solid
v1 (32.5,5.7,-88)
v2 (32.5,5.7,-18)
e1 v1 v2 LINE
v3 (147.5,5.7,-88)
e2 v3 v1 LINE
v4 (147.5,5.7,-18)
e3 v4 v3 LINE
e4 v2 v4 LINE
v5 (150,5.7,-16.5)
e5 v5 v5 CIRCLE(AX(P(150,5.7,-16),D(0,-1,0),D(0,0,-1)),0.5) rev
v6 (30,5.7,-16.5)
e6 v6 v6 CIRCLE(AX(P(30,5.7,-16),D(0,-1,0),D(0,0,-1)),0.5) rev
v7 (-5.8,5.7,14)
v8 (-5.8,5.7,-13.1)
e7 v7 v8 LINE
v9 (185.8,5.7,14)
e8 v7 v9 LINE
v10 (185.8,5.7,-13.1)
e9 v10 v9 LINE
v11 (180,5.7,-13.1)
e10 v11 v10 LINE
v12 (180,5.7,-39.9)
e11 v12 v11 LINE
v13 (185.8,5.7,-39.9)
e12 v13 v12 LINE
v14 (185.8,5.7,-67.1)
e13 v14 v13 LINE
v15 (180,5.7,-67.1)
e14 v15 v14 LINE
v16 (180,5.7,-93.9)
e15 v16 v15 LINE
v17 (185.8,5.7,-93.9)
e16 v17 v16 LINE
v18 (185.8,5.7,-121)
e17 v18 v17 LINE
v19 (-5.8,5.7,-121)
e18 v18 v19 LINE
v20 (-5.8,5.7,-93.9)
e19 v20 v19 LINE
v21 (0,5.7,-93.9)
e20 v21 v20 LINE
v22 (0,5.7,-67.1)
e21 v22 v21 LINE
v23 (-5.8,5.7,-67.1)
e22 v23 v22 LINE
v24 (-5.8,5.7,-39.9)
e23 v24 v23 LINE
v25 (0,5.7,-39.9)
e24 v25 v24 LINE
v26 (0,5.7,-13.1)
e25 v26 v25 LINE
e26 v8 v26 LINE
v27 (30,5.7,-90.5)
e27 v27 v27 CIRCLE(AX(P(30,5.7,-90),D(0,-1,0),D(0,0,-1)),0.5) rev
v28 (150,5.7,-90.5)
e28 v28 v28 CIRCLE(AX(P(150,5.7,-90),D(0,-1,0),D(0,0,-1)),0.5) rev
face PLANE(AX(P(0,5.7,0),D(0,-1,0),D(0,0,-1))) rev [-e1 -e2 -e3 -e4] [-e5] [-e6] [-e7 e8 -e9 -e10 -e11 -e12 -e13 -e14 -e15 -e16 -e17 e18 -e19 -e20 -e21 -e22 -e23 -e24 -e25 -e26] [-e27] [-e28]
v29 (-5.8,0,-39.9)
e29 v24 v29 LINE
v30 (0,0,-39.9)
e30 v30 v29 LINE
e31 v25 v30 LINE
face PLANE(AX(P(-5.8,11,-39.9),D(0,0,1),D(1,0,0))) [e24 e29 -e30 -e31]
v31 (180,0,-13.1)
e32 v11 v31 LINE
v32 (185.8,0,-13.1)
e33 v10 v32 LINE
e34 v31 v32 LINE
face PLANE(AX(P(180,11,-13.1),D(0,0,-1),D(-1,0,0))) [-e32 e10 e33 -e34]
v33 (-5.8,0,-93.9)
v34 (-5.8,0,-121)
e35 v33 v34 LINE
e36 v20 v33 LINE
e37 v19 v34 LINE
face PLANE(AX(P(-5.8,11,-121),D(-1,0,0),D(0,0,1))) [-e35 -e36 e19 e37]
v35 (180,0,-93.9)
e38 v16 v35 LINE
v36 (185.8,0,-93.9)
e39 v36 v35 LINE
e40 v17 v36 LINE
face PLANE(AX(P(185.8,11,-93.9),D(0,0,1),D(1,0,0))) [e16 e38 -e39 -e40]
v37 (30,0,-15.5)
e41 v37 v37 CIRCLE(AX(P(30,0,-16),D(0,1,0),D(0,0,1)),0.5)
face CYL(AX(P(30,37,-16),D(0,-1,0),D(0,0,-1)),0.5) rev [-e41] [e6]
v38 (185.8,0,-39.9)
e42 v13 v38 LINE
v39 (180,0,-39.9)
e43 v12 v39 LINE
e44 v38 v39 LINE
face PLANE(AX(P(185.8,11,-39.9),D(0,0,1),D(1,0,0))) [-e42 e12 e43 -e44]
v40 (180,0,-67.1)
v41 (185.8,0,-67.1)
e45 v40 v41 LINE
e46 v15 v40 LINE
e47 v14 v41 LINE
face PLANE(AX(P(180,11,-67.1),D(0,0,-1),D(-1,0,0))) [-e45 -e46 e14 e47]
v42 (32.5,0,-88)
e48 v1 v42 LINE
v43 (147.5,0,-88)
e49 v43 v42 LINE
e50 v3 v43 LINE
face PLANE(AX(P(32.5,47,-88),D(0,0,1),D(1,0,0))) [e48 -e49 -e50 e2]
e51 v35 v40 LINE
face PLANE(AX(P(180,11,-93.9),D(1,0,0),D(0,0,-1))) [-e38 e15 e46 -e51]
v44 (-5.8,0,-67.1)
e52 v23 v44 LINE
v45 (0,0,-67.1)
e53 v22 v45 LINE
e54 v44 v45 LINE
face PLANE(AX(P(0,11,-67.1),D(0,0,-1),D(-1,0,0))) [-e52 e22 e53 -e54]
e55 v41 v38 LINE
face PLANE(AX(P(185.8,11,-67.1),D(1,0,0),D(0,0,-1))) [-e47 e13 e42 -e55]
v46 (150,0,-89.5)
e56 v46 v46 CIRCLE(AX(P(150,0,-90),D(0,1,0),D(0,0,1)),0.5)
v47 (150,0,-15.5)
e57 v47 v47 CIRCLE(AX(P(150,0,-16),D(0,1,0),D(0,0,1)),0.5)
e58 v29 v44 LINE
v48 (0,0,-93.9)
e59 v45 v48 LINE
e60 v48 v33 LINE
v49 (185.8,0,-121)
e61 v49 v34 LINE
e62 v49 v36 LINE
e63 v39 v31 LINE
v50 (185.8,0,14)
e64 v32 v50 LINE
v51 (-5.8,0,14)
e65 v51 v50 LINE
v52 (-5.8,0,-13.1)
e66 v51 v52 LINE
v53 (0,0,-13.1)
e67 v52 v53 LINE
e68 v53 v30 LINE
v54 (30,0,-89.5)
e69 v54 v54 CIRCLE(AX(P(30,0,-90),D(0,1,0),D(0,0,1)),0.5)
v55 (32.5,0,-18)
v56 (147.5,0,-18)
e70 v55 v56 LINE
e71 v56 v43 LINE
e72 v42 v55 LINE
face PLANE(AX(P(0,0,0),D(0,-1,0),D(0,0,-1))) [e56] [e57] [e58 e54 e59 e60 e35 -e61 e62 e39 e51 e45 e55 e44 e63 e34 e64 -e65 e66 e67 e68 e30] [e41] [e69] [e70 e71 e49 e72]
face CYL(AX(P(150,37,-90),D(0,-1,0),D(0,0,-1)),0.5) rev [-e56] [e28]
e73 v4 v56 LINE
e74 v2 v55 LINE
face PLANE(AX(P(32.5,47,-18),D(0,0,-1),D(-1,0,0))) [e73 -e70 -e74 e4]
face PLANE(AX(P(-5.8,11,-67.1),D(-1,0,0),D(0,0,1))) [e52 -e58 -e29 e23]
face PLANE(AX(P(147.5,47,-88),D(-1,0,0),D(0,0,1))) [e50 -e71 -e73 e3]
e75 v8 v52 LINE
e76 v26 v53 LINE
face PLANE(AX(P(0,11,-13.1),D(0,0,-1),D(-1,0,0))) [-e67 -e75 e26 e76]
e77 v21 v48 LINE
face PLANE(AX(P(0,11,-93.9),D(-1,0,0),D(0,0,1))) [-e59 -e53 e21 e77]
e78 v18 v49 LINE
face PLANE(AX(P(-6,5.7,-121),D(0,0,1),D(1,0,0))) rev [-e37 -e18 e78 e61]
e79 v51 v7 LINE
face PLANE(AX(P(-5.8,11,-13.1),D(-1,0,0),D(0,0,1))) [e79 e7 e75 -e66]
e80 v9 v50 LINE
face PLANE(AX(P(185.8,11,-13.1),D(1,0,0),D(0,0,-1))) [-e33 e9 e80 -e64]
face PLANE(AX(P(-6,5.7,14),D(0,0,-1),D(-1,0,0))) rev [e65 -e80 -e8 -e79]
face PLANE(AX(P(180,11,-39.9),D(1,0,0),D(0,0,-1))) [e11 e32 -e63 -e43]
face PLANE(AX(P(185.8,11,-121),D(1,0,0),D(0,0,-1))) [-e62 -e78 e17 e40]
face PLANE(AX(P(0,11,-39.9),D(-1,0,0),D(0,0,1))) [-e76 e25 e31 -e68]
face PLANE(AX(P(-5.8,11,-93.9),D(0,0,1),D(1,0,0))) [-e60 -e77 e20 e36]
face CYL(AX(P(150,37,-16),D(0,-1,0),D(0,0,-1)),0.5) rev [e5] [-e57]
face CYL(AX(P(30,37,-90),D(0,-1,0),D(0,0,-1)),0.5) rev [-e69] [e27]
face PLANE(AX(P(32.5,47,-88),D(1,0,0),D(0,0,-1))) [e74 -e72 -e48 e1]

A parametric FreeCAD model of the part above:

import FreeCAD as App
import Part
import Sketcher
Q = App.Units.Quantity


def add_polygon(sketch, points):
    """Adds a closed chain of lines whose ends are joined by coincident constraints."""
    first, n = sketch.GeometryCount, len(points)
    for a, b in zip(points, points[1:] + points[:1]):
        sketch.addGeometry(Part.LineSegment(App.Vector(*a, 0), App.Vector(*b, 0)), False)
    for i in range(n):
        sketch.addConstraint(Sketcher.Constraint("Coincident", first + i, 2, first + (i + 1) % n, 1))

doc = App.newDocument("Part")
params = doc.addObject("Spreadsheet::Sheet", "Params")
for row, (alias, value) in enumerate([
    ("sketch1_width", "192 mm"),
    ("sketch1_height", "135 mm"),
    ("pad1_length", "5.7 mm"),
    ("sketch2_width", "115 mm"),
    ("sketch2_height", "70 mm"),
    ("pocket1_length", "47 mm"),
    ("sketch3_diameter", "1 mm"),
    ("pocket2_length", "37 mm"),
    ("sketch4_width", "4 mm"),
    ("sketch4_height", "135 mm"),
    ("sketch4_width2", "5.8 mm"),
    ("sketch4_height2", "27.1 mm"),
    ("sketch4_height3", "26.8 mm"),
    ("pocket3_length", "11 mm"),
], start=1):
    params.set(f"A{row}", alias)
    params.set(f"B{row}", "=" + value)
    params.setAlias(f"B{row}", alias)

body = doc.addObject("PartDesign::Body", "Body")

sketch1 = body.newObject("Sketcher::SketchObject", "Sketch")
sketch1.AttachmentSupport = (doc.getObject("XZ_Plane"), [""])
sketch1.MapMode = "FlatFace"
add_polygon(sketch1, [(-6, -121), (-6, 14), (186, 14), (186, -121)])
sketch1.addConstraint([
    Sketcher.Constraint("Vertical", 0),
    Sketcher.Constraint("Horizontal", 1),
    Sketcher.Constraint("Vertical", 2),
    Sketcher.Constraint("Horizontal", 3),
    Sketcher.Constraint("DistanceX", 1, 1, 1, 2, Q("192 mm")),
    Sketcher.Constraint("DistanceY", 0, 1, 0, 2, Q("135 mm")),
    Sketcher.Constraint("DistanceX", 0, 2, -1, 1, Q("6 mm")),
    Sketcher.Constraint("DistanceY", -1, 1, 0, 2, Q("14 mm")),
])
sketch1.setExpression("Constraints[8]", "Params.sketch1_width")
sketch1.setExpression("Constraints[9]", "Params.sketch1_height")
pad1 = body.newObject("PartDesign::Pad", "Pad")
pad1.Profile = sketch1
pad1.setExpression("Length", "Params.pad1_length")
pad1.Reversed = True

sketch2 = body.newObject("Sketcher::SketchObject", "Sketch001")
sketch2.AttachmentSupport = (doc.getObject("XZ_Plane"), [""])
sketch2.MapMode = "FlatFace"
add_polygon(sketch2, [(32.5, -88), (32.5, -18), (147.5, -18), (147.5, -88)])
sketch2.addConstraint([
    Sketcher.Constraint("Vertical", 0),
    Sketcher.Constraint("Horizontal", 1),
    Sketcher.Constraint("Vertical", 2),
    Sketcher.Constraint("Horizontal", 3),
    Sketcher.Constraint("DistanceX", 1, 1, 1, 2, Q("115 mm")),
    Sketcher.Constraint("DistanceY", 0, 1, 0, 2, Q("70 mm")),
    Sketcher.Constraint("DistanceY", 0, 2, -1, 1, Q("18 mm")),
    Sketcher.Constraint("DistanceX", -1, 1, 0, 2, Q("32.5 mm")),
])
sketch2.setExpression("Constraints[8]", "Params.sketch2_width")
sketch2.setExpression("Constraints[9]", "Params.sketch2_height")
pocket1 = body.newObject("PartDesign::Pocket", "Pocket")
pocket1.Profile = sketch2
pocket1.setExpression("Length", "Params.pocket1_length")

sketch3 = body.newObject("Sketcher::SketchObject", "Sketch002")
sketch3.AttachmentSupport = (doc.getObject("XZ_Plane"), [""])
sketch3.MapMode = "FlatFace"
sketch3.addGeometry([
    Part.Circle(App.Vector(30, -90, 0), App.Vector(0, 0, 1), 0.5),
    Part.Circle(App.Vector(30, -16, 0), App.Vector(0, 0, 1), 0.5),
    Part.Circle(App.Vector(150, -16, 0), App.Vector(0, 0, 1), 0.5),
    Part.Circle(App.Vector(150, -90, 0), App.Vector(0, 0, 1), 0.5),
], False)
sketch3.addConstraint([
    Sketcher.Constraint("Equal", 0, 1),
    Sketcher.Constraint("Equal", 1, 2),
    Sketcher.Constraint("Equal", 2, 3),
    Sketcher.Constraint("Horizontal", 1, 3, 2, 3),
    Sketcher.Constraint("Horizontal", 0, 3, 3, 3),
    Sketcher.Constraint("Vertical", 0, 3, 1, 3),
    Sketcher.Constraint("Vertical", 2, 3, 3, 3),
    Sketcher.Constraint("Diameter", 0, Q("1 mm")),
    Sketcher.Constraint("DistanceX", -1, 1, 0, 3, Q("30 mm")),
    Sketcher.Constraint("DistanceY", 0, 3, -1, 1, Q("90 mm")),
    Sketcher.Constraint("DistanceY", 1, 3, -1, 1, Q("16 mm")),
    Sketcher.Constraint("DistanceX", -1, 1, 2, 3, Q("150 mm")),
])
sketch3.setExpression("Constraints[7]", "Params.sketch3_diameter")
pocket2 = body.newObject("PartDesign::Pocket", "Pocket001")
pocket2.Profile = sketch3
pocket2.setExpression("Length", "Params.pocket2_length")

sketch4 = body.newObject("Sketcher::SketchObject", "Sketch003")
sketch4.AttachmentSupport = (doc.getObject("XZ_Plane"), [""])
sketch4.MapMode = "FlatFace"
add_polygon(sketch4, [(-5.8, -93.9), (-5.8, -121), (-9.8, -121), (-9.8, 14), (-5.8, 14), (-5.8, -13.1), (0, -13.1), (0, -39.9), (-5.8, -39.9), (-5.8, -67.1), (0, -67.1), (0, -93.9)])
add_polygon(sketch4, [(189.8, -121), (185.8, -121), (185.8, -93.9), (180, -93.9), (180, -67.1), (185.8, -67.1), (185.8, -39.9), (180, -39.9), (180, -13.1), (185.8, -13.1), (185.8, 14), (189.8, 14)])
sketch4.addConstraint([
    Sketcher.Constraint("Vertical", 0),
    Sketcher.Constraint("Horizontal", 1),
    Sketcher.Constraint("Vertical", 2),
    Sketcher.Constraint("Horizontal", 3),
    Sketcher.Constraint("Vertical", 4),
    Sketcher.Constraint("Horizontal", 5),
    Sketcher.Constraint("Vertical", 6),
    Sketcher.Constraint("Horizontal", 7),
    Sketcher.Constraint("Vertical", 8),
    Sketcher.Constraint("Horizontal", 9),
    Sketcher.Constraint("Vertical", 10),
    Sketcher.Constraint("Horizontal", 11),
    Sketcher.Constraint("Horizontal", 12),
    Sketcher.Constraint("Vertical", 13),
    Sketcher.Constraint("Horizontal", 14),
    Sketcher.Constraint("Vertical", 15),
    Sketcher.Constraint("Horizontal", 16),
    Sketcher.Constraint("Vertical", 17),
    Sketcher.Constraint("Horizontal", 18),
    Sketcher.Constraint("Vertical", 19),
    Sketcher.Constraint("Horizontal", 20),
    Sketcher.Constraint("Vertical", 21),
    Sketcher.Constraint("Horizontal", 22),
    Sketcher.Constraint("Vertical", 23),
    Sketcher.Constraint("PointOnObject", 5, 2, -2),
    Sketcher.Constraint("PointOnObject", 9, 2, -2),
    Sketcher.Constraint("Horizontal", 1, 2, 12, 2),
    Sketcher.Constraint("Horizontal", 11, 2, 13, 2),
    Sketcher.Constraint("Horizontal", 9, 2, 15, 2),
    Sketcher.Constraint("Horizontal", 7, 2, 17, 2),
    Sketcher.Constraint("Horizontal", 5, 2, 19, 2),
    Sketcher.Constraint("Horizontal", 3, 2, 21, 2),
    Sketcher.Constraint("Vertical", 0, 2, 3, 2),
    Sketcher.Constraint("Vertical", 4, 2, 7, 2),
    Sketcher.Constraint("Vertical", 13, 2, 16, 2),
    Sketcher.Constraint("Vertical", 15, 2, 18, 2),
    Sketcher.Constraint("Vertical", 17, 2, 20, 2),
    Sketcher.Constraint("Equal", 3, 12),
    Sketcher.Constraint("Equal", 11, 14),
    Sketcher.Constraint("Equal", 0, 4),
    Sketcher.Constraint("Equal", 6, 10),
    Sketcher.Constraint("DistanceX", 1, 2, 1, 1, Q("4 mm")),
    Sketcher.Constraint("DistanceY", 2, 1, 2, 2, Q("135 mm")),
    Sketcher.Constraint("DistanceX", 5, 1, 5, 2, Q("5.8 mm")),
    Sketcher.Constraint("DistanceY", 0, 2, 0, 1, Q("27.1 mm")),
    Sketcher.Constraint("DistanceY", 6, 2, 6, 1, Q("26.8 mm")),
    Sketcher.Constraint("DistanceY", 0, 2, -1, 1, Q("121 mm")),
    Sketcher.Constraint("DistanceX", -1, 1, 14, 2, Q("180 mm")),
])
sketch4.setExpression("Constraints[65]", "Params.sketch4_width")
sketch4.setExpression("Constraints[66]", "Params.sketch4_height")
sketch4.setExpression("Constraints[67]", "Params.sketch4_width2")
sketch4.setExpression("Constraints[68]", "Params.sketch4_height2")
sketch4.setExpression("Constraints[69]", "Params.sketch4_height3")
pocket3 = body.newObject("PartDesign::Pocket", "Pocket002")
pocket3.Profile = sketch4
pocket3.setExpression("Length", "Params.pocket3_length")

doc.recompute()
